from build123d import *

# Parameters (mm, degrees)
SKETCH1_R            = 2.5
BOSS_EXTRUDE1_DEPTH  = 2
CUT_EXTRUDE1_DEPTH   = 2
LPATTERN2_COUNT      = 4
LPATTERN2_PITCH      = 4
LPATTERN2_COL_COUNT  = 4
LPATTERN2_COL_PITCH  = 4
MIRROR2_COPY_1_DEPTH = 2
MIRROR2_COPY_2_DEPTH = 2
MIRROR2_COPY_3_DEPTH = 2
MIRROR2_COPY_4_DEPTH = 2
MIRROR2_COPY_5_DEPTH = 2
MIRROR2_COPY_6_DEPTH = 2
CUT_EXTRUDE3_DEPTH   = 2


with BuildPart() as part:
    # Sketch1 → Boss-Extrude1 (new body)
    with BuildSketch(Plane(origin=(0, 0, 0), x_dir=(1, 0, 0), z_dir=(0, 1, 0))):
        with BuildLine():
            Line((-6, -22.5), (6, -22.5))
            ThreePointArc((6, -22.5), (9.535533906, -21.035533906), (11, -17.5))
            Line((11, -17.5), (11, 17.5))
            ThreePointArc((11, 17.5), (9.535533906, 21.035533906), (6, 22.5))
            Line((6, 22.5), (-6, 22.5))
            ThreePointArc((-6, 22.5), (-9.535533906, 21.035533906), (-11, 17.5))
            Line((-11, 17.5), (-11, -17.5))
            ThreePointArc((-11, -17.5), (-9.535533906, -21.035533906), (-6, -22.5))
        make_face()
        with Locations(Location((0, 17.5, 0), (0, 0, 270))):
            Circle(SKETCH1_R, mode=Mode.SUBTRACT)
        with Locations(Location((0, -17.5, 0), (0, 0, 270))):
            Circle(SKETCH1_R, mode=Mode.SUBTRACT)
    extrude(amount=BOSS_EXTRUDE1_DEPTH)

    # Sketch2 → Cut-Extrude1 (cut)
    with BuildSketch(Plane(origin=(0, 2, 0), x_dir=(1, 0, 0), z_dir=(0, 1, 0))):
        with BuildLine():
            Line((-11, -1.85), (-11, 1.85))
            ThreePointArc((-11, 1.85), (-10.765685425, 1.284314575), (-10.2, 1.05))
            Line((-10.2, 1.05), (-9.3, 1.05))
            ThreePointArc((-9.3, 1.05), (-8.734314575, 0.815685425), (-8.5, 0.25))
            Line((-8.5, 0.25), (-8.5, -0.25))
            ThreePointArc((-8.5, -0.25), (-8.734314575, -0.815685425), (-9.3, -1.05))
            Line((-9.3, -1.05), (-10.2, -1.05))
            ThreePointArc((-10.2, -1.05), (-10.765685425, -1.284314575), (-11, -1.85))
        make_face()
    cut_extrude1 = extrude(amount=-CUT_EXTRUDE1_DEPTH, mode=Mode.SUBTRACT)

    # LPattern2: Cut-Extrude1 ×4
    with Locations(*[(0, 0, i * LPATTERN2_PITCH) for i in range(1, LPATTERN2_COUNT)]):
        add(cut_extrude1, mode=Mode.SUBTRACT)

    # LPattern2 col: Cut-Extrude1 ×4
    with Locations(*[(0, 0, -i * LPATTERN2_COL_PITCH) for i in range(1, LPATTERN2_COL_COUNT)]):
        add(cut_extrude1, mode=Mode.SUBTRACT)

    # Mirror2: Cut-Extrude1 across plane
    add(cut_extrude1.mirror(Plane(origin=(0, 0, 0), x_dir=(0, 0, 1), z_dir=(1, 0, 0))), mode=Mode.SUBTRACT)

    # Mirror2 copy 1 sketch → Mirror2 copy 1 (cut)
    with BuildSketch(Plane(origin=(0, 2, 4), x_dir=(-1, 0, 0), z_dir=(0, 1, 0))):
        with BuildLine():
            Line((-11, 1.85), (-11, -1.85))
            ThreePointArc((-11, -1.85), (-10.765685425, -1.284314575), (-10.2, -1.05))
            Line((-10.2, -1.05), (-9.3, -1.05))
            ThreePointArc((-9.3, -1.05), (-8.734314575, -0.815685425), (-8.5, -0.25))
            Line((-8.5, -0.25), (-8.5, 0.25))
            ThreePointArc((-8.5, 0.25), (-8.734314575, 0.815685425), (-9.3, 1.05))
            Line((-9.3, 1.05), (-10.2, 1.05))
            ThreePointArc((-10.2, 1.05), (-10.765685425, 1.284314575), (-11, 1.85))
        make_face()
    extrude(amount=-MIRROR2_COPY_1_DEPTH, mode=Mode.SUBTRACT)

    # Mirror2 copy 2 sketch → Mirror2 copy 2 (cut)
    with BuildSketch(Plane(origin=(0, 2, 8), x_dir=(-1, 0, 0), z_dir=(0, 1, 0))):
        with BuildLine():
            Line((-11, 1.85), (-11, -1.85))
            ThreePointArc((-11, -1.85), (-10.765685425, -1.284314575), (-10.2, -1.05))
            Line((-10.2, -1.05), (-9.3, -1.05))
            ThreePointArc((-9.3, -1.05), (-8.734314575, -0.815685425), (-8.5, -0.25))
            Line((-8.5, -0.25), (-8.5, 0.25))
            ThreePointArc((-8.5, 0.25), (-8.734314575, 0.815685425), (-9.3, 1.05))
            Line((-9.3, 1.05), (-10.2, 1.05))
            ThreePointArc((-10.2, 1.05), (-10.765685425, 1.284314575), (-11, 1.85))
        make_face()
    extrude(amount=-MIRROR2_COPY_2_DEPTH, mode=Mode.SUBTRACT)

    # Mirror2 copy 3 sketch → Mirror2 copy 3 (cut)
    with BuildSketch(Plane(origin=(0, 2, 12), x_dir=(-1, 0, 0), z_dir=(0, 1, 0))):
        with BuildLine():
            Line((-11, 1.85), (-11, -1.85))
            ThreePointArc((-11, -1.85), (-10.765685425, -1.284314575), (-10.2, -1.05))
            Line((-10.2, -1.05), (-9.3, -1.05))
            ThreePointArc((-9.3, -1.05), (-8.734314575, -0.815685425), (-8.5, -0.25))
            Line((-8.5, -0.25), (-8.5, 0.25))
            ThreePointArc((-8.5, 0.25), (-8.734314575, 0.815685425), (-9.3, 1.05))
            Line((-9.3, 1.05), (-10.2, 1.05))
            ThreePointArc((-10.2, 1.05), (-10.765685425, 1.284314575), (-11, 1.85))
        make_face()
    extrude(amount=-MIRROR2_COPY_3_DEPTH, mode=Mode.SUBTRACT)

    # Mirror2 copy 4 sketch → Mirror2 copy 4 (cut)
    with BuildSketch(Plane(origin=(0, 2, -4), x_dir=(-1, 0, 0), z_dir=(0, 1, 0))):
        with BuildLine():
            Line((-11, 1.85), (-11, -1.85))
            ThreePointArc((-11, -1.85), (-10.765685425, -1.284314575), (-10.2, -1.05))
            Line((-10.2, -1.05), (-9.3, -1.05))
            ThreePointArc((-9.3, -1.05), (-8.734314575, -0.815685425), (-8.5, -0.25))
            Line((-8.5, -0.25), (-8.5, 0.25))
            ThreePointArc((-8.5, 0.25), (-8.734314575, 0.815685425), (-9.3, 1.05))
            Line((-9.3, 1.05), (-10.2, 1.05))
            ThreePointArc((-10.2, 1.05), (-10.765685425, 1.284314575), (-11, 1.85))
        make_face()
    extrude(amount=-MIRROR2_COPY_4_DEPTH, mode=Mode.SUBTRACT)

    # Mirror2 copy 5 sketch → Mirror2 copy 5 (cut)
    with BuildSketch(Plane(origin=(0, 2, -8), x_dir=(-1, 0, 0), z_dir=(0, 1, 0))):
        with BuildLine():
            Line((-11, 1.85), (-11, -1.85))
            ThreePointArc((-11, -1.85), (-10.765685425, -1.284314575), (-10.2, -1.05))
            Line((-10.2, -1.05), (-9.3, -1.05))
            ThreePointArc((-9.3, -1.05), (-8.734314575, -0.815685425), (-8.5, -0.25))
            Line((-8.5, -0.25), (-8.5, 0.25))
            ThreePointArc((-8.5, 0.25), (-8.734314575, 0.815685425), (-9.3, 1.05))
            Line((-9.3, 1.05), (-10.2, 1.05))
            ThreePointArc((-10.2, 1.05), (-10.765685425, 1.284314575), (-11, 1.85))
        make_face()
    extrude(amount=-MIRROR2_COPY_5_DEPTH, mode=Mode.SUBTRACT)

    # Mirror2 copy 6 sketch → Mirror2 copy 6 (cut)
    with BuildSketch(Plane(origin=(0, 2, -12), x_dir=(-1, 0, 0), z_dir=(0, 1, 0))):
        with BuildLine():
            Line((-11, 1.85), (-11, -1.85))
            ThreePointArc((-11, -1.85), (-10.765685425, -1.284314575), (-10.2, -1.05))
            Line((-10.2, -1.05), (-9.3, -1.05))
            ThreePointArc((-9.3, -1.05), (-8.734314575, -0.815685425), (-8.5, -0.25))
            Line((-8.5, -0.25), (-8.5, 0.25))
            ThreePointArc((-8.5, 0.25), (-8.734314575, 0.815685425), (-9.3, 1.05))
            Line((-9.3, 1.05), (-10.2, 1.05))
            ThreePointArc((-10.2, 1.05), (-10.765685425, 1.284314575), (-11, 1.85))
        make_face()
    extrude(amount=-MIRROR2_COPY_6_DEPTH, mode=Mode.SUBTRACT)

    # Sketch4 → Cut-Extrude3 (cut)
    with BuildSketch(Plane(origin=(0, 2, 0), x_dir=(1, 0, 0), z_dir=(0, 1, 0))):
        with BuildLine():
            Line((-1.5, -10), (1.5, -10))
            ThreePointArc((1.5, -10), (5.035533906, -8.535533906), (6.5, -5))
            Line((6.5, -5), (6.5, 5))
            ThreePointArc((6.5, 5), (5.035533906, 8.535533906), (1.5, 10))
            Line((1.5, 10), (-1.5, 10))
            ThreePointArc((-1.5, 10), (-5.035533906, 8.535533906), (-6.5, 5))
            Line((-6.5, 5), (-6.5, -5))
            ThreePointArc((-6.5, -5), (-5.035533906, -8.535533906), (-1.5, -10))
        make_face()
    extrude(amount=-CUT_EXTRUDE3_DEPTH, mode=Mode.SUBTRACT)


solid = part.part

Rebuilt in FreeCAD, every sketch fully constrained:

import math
import FreeCAD as App
import Part
import Sketcher

V = App.Vector

doc = App.newDocument("Part")
body = doc.addObject("PartDesign::Body", "Body")

# Sketch on XZ plane
sketch1 = body.newObject("Sketcher::SketchObject", "Sketch")
sketch1.AttachmentSupport = (doc.getObject("XZ_Plane"), [""])
sketch1.MapMode = "FlatFace"
sketch1.addGeometry([
    Part.LineSegment(V(-6, 22.5, 0), V(6, 22.5, 0)),  # 0
    Part.ArcOfCircle(Part.Circle(V(6, 17.5, 0), V(0, 0, 1), 5), math.radians(0), math.radians(90)),  # 1
    Part.LineSegment(V(11, 17.5, 0), V(11, -17.5, 0)),  # 2
    Part.ArcOfCircle(Part.Circle(V(6, -17.5, 0), V(0, 0, 1), 5), math.radians(-90), math.radians(0)),  # 3
    Part.LineSegment(V(6, -22.5, 0), V(-6, -22.5, 0)),  # 4
    Part.ArcOfCircle(Part.Circle(V(-6, -17.5, 0), V(0, 0, 1), 5), math.radians(180), math.radians(270)),  # 5
    Part.LineSegment(V(-11, -17.5, 0), V(-11, 17.5, 0)),  # 6
    Part.ArcOfCircle(Part.Circle(V(-6, 17.5, 0), V(0, 0, 1), 5), math.radians(90), math.radians(180)),  # 7
    Part.Circle(V(0, 17.5, 0), V(0, 0, 1), 2.5),  # 8
    Part.Circle(V(0, -17.5, 0), V(0, 0, 1), 2.5),  # 9
], False)
sketch1.addConstraint([
    Sketcher.Constraint("Tangent", 0, 2, 1, 2),
    Sketcher.Constraint("Tangent", 1, 1, 2, 1),
    Sketcher.Constraint("Tangent", 2, 2, 3, 2),
    Sketcher.Constraint("Tangent", 3, 1, 4, 1),
    Sketcher.Constraint("Tangent", 4, 2, 5, 2),
    Sketcher.Constraint("Tangent", 5, 1, 6, 1),
    Sketcher.Constraint("Tangent", 6, 2, 7, 2),
    Sketcher.Constraint("Tangent", 7, 1, 0, 1),
    Sketcher.Constraint("Horizontal", 0),
    Sketcher.Constraint("Vertical", 2),
    Sketcher.Constraint("Horizontal", 4),
    Sketcher.Constraint("Vertical", 6),
    Sketcher.Constraint("Equal", 1, 3),
    Sketcher.Constraint("Equal", 3, 5),
    Sketcher.Constraint("Equal", 5, 7),
    Sketcher.Constraint("Equal", 8, 9),
    Sketcher.Constraint("Symmetric", 1, 3, 5, 3, -1, 1),
    Sketcher.Constraint("Symmetric", 8, 3, 9, 3, -1, 1),
    Sketcher.Constraint("PointOnObject", 8, 3, -2),
    Sketcher.Constraint("Horizontal", 7, 3, 8, 3),
    Sketcher.Constraint("Diameter", 8, 5.0),
    Sketcher.Constraint("Radius", 1, 5.0),
    Sketcher.Constraint("DistanceX", 0, 1, 0, 2, 12.0),
    Sketcher.Constraint("DistanceY", 2, 2, 2, 1, 35.0),
])
pad1 = body.newObject("PartDesign::Pad", "Pad")
pad1.Profile = sketch1
pad1.Length = 2
pad1.Reversed = True

# Sketch on XZ plane
sketch2 = body.newObject("Sketcher::SketchObject", "Sketch001")
sketch2.AttachmentSupport = (doc.getObject("XZ_Plane"), [""])
sketch2.MapMode = "FlatFace"
sketch2.AttachmentOffset = App.Placement(V(0, 0, -2), App.Rotation())
sketch2.addGeometry([
    Part.LineSegment(V(-11, -1.9, 0), V(-11, 1.9, 0)),  # 0
    Part.ArcOfCircle(Part.Circle(V(-10.2, 1.9, 0), V(0, 0, 1), 0.8), math.radians(180), math.radians(270)),  # 1
    Part.LineSegment(V(-10.2, 1.1, 0), V(-9.3, 1.1, 0)),  # 2
    Part.ArcOfCircle(Part.Circle(V(-9.3, 0.2, 0), V(0, 0, 1), 0.8), math.radians(0), math.radians(90)),  # 3
    Part.LineSegment(V(-8.5, 0.2, 0), V(-8.5, -0.2, 0)),  # 4
    Part.ArcOfCircle(Part.Circle(V(-9.3, -0.2, 0), V(0, 0, 1), 0.8), math.radians(-90), math.radians(0)),  # 5
    Part.LineSegment(V(-9.3, -1.1, 0), V(-10.2, -1.1, 0)),  # 6
    Part.ArcOfCircle(Part.Circle(V(-10.2, -1.9, 0), V(0, 0, 1), 0.8), math.radians(90), math.radians(180)),  # 7
], False)
sketch2.addConstraint([
    Sketcher.Constraint("Tangent", 0, 2, 1, 1),
    Sketcher.Constraint("Tangent", 1, 2, 2, 1),
    Sketcher.Constraint("Tangent", 2, 2, 3, 2),
    Sketcher.Constraint("Tangent", 3, 1, 4, 1),
    Sketcher.Constraint("Tangent", 4, 2, 5, 2),
    Sketcher.Constraint("Tangent", 5, 1, 6, 1),
    Sketcher.Constraint("Tangent", 6, 2, 7, 1),
    Sketcher.Constraint("Tangent", 7, 2, 0, 1),
    Sketcher.Constraint("Vertical", 0),
    Sketcher.Constraint("Horizontal", 2),
    Sketcher.Constraint("Vertical", 4),
    Sketcher.Constraint("Horizontal", 6),
    Sketcher.Constraint("Equal", 1, 3),
    Sketcher.Constraint("Equal", 3, 5),
    Sketcher.Constraint("Equal", 5, 7),
    Sketcher.Constraint("Radius", 1, 0.8),
    Sketcher.Constraint("DistanceX", 2, 1, 2, 2, 0.9),
    Sketcher.Constraint("DistanceY", 0, 1, 0, 2, 3.7),
    Sketcher.Constraint("DistanceX", 0, 2, -1, 1, 11.0),
    Sketcher.Constraint("DistanceY", -1, 1, 1, 3, 1.85),
])
pocket1 = body.newObject("PartDesign::Pocket", "Pocket")
pocket1.Profile = sketch2
pocket1.Length = 2
pocket1.Reversed = True
doc.recompute()

linearpattern = body.newObject("PartDesign::LinearPattern", "LinearPattern")
linearpattern.Originals = [pocket1]
linearpattern.Direction = (doc.getObject("Z_Axis"), [""])
linearpattern.Mode = "offset"
linearpattern.Offset = 4
linearpattern.Occurrences = 4
body.Tip = linearpattern
doc.recompute()

linearpattern2 = body.newObject("PartDesign::LinearPattern", "LinearPattern001")
linearpattern2.Originals = [pocket1]
linearpattern2.Direction = (doc.getObject("Z_Axis"), [""])
linearpattern2.Mode = "offset"
linearpattern2.Offset = 4
linearpattern2.Occurrences = 4
linearpattern2.Reversed = True
body.Tip = linearpattern2
doc.recompute()

mirrored = body.newObject("PartDesign::Mirrored", "Mirrored")
mirrored.Originals = [pocket1]
mirrored.MirrorPlane = (doc.getObject("YZ_Plane"), [""])
body.Tip = mirrored

# Sketch on XZ plane
sketch3 = body.newObject("Sketcher::SketchObject", "Sketch002")
sketch3.AttachmentSupport = (doc.getObject("XZ_Plane"), [""])
sketch3.MapMode = "FlatFace"
sketch3.AttachmentOffset = App.Placement(V(0, 0, -2), App.Rotation())
sketch3.addGeometry([
    Part.LineSegment(V(11, 5.8, 0), V(11, 2.1, 0)),  # 0
    Part.ArcOfCircle(Part.Circle(V(10.2, 2.1, 0), V(0, 0, 1), 0.8), math.radians(0), math.radians(90)),  # 1
    Part.LineSegment(V(10.2, 3, 0), V(9.3, 3, 0)),  # 2
    Part.ArcOfCircle(Part.Circle(V(9.3, 3.8, 0), V(0, 0, 1), 0.8), math.radians(180), math.radians(270)),  # 3
    Part.LineSegment(V(8.5, 3.8, 0), V(8.5, 4.2, 0)),  # 4
    Part.ArcOfCircle(Part.Circle(V(9.3, 4.2, 0), V(0, 0, 1), 0.8), math.radians(90), math.radians(180)),  # 5
    Part.LineSegment(V(9.3, 5, 0), V(10.2, 5, 0)),  # 6
    Part.ArcOfCircle(Part.Circle(V(10.2, 5.8, 0), V(0, 0, 1), 0.8), math.radians(-90), math.radians(0)),  # 7
], False)
sketch3.addConstraint([
    Sketcher.Constraint("Tangent", 0, 2, 1, 1),
    Sketcher.Constraint("Tangent", 1, 2, 2, 1),
    Sketcher.Constraint("Tangent", 2, 2, 3, 2),
    Sketcher.Constraint("Tangent", 3, 1, 4, 1),
    Sketcher.Constraint("Tangent", 4, 2, 5, 2),
    Sketcher.Constraint("Tangent", 5, 1, 6, 1),
    Sketcher.Constraint("Tangent", 6, 2, 7, 1),
    Sketcher.Constraint("Tangent", 7, 2, 0, 1),
    Sketcher.Constraint("Vertical", 0),
    Sketcher.Constraint("Horizontal", 2),
    Sketcher.Constraint("Vertical", 4),
    Sketcher.Constraint("Horizontal", 6),
    Sketcher.Constraint("Equal", 1, 3),
    Sketcher.Constraint("Equal", 3, 5),
    Sketcher.Constraint("Equal", 5, 7),
    Sketcher.Constraint("Radius", 1, 0.8),
    Sketcher.Constraint("DistanceX", 2, 2, 2, 1, 0.9),
    Sketcher.Constraint("DistanceY", 0, 2, 0, 1, 3.7),
    Sketcher.Constraint("DistanceX", -1, 1, 0, 2, 11.0),
    Sketcher.Constraint("DistanceY", -1, 1, 1, 3, 2.15),
])
pocket2 = body.newObject("PartDesign::Pocket", "Pocket001")
pocket2.Profile = sketch3
pocket2.Length = 2
pocket2.Reversed = True

# Sketch on XZ plane
sketch4 = body.newObject("Sketcher::SketchObject", "Sketch003")
sketch4.AttachmentSupport = (doc.getObject("XZ_Plane"), [""])
sketch4.MapMode = "FlatFace"
sketch4.AttachmentOffset = App.Placement(V(0, 0, -2), App.Rotation())
sketch4.addGeometry([
    Part.LineSegment(V(11, 9.8, 0), V(11, 6.2, 0)),  # 0
    Part.ArcOfCircle(Part.Circle(V(10.2, 6.2, 0), V(0, 0, 1), 0.8), math.radians(0), math.radians(90)),  # 1
    Part.LineSegment(V(10.2, 7, 0), V(9.3, 7, 0)),  # 2
    Part.ArcOfCircle(Part.Circle(V(9.3, 7.8, 0), V(0, 0, 1), 0.8), math.radians(180), math.radians(270)),  # 3
    Part.LineSegment(V(8.5, 7.8, 0), V(8.5, 8.2, 0)),  # 4
    Part.ArcOfCircle(Part.Circle(V(9.3, 8.2, 0), V(0, 0, 1), 0.8), math.radians(90), math.radians(180)),  # 5
    Part.LineSegment(V(9.3, 9.1, 0), V(10.2, 9.1, 0)),  # 6
    Part.ArcOfCircle(Part.Circle(V(10.2, 9.8, 0), V(0, 0, 1), 0.8), math.radians(-90), math.radians(0)),  # 7
], False)
sketch4.addConstraint([
    Sketcher.Constraint("Tangent", 0, 2, 1, 1),
    Sketcher.Constraint("Tangent", 1, 2, 2, 1),
    Sketcher.Constraint("Tangent", 2, 2, 3, 2),
    Sketcher.Constraint("Tangent", 3, 1, 4, 1),
    Sketcher.Constraint("Tangent", 4, 2, 5, 2),
    Sketcher.Constraint("Tangent", 5, 1, 6, 1),
    Sketcher.Constraint("Tangent", 6, 2, 7, 1),
    Sketcher.Constraint("Tangent", 7, 2, 0, 1),
    Sketcher.Constraint("Vertical", 0),
    Sketcher.Constraint("Horizontal", 2),
    Sketcher.Constraint("Vertical", 4),
    Sketcher.Constraint("Horizontal", 6),
    Sketcher.Constraint("Equal", 1, 3),
    Sketcher.Constraint("Equal", 3, 5),
    Sketcher.Constraint("Equal", 5, 7),
    Sketcher.Constraint("Radius", 1, 0.8),
    Sketcher.Constraint("DistanceX", 2, 2, 2, 1, 0.9),
    Sketcher.Constraint("DistanceY", 0, 2, 0, 1, 3.7),
    Sketcher.Constraint("DistanceX", -1, 1, 0, 2, 11.0),
    Sketcher.Constraint("DistanceY", -1, 1, 1, 3, 6.15),
])
pocket3 = body.newObject("PartDesign::Pocket", "Pocket002")
pocket3.Profile = sketch4
pocket3.Length = 2
pocket3.Reversed = True

# Sketch on XZ plane
sketch5 = body.newObject("Sketcher::SketchObject", "Sketch004")
sketch5.AttachmentSupport = (doc.getObject("XZ_Plane"), [""])
sketch5.MapMode = "FlatFace"
sketch5.AttachmentOffset = App.Placement(V(0, 0, -2), App.Rotation())
sketch5.addGeometry([
    Part.LineSegment(V(11, 13.8, 0), V(11, 10.2, 0)),  # 0
    Part.ArcOfCircle(Part.Circle(V(10.2, 10.2, 0), V(0, 0, 1), 0.8), math.radians(0), math.radians(90)),  # 1
    Part.LineSegment(V(10.2, 10.9, 0), V(9.3, 10.9, 0)),  # 2
    Part.ArcOfCircle(Part.Circle(V(9.3, 11.8, 0), V(0, 0, 1), 0.8), math.radians(180), math.radians(270)),  # 3
    Part.LineSegment(V(8.5, 11.8, 0), V(8.5, 12.2, 0)),  # 4
    Part.ArcOfCircle(Part.Circle(V(9.3, 12.2, 0), V(0, 0, 1), 0.8), math.radians(90), math.radians(180)),  # 5
    Part.LineSegment(V(9.3, 13.1, 0), V(10.2, 13.1, 0)),  # 6
    Part.ArcOfCircle(Part.Circle(V(10.2, 13.8, 0), V(0, 0, 1), 0.8), math.radians(-90), math.radians(0)),  # 7
], False)
sketch5.addConstraint([
    Sketcher.Constraint("Tangent", 0, 2, 1, 1),
    Sketcher.Constraint("Tangent", 1, 2, 2, 1),
    Sketcher.Constraint("Tangent", 2, 2, 3, 2),
    Sketcher.Constraint("Tangent", 3, 1, 4, 1),
    Sketcher.Constraint("Tangent", 4, 2, 5, 2),
    Sketcher.Constraint("Tangent", 5, 1, 6, 1),
    Sketcher.Constraint("Tangent", 6, 2, 7, 1),
    Sketcher.Constraint("Tangent", 7, 2, 0, 1),
    Sketcher.Constraint("Vertical", 0),
    Sketcher.Constraint("Horizontal", 2),
    Sketcher.Constraint("Vertical", 4),
    Sketcher.Constraint("Horizontal", 6),
    Sketcher.Constraint("Equal", 1, 3),
    Sketcher.Constraint("Equal", 3, 5),
    Sketcher.Constraint("Equal", 5, 7),
    Sketcher.Constraint("Radius", 1, 0.8),
    Sketcher.Constraint("DistanceX", 2, 2, 2, 1, 0.9),
    Sketcher.Constraint("DistanceY", 0, 2, 0, 1, 3.7),
    Sketcher.Constraint("DistanceX", -1, 1, 0, 2, 11.0),
    Sketcher.Constraint("DistanceY", -1, 1, 1, 3, 10.15),
])
pocket4 = body.newObject("PartDesign::Pocket", "Pocket003")
pocket4.Profile = sketch5
pocket4.Length = 2
pocket4.Reversed = True

# Sketch on XZ plane
sketch6 = body.newObject("Sketcher::SketchObject", "Sketch005")
sketch6.AttachmentSupport = (doc.getObject("XZ_Plane"), [""])
sketch6.MapMode = "FlatFace"
sketch6.AttachmentOffset = App.Placement(V(0, 0, -2), App.Rotation())
sketch6.addGeometry([
    Part.LineSegment(V(11, -2.1, 0), V(11, -5.8, 0)),  # 0
    Part.ArcOfCircle(Part.Circle(V(10.2, -5.8, 0), V(0, 0, 1), 0.8), math.radians(0), math.radians(90)),  # 1
    Part.LineSegment(V(10.2, -5, 0), V(9.3, -5, 0)),  # 2
    Part.ArcOfCircle(Part.Circle(V(9.3, -4.2, 0), V(0, 0, 1), 0.8), math.radians(180), math.radians(270)),  # 3
    Part.LineSegment(V(8.5, -4.2, 0), V(8.5, -3.8, 0)),  # 4
    Part.ArcOfCircle(Part.Circle(V(9.3, -3.8, 0), V(0, 0, 1), 0.8), math.radians(90), math.radians(180)),  # 5
    Part.LineSegment(V(9.3, -3, 0), V(10.2, -3, 0)),  # 6
    Part.ArcOfCircle(Part.Circle(V(10.2, -2.1, 0), V(0, 0, 1), 0.8), math.radians(-90), math.radians(0)),  # 7
], False)
sketch6.addConstraint([
    Sketcher.Constraint("Tangent", 0, 2, 1, 1),
    Sketcher.Constraint("Tangent", 1, 2, 2, 1),
    Sketcher.Constraint("Tangent", 2, 2, 3, 2),
    Sketcher.Constraint("Tangent", 3, 1, 4, 1),
    Sketcher.Constraint("Tangent", 4, 2, 5, 2),
    Sketcher.Constraint("Tangent", 5, 1, 6, 1),
    Sketcher.Constraint("Tangent", 6, 2, 7, 1),
    Sketcher.Constraint("Tangent", 7, 2, 0, 1),
    Sketcher.Constraint("Vertical", 0),
    Sketcher.Constraint("Horizontal", 2),
    Sketcher.Constraint("Vertical", 4),
    Sketcher.Constraint("Horizontal", 6),
    Sketcher.Constraint("Equal", 1, 3),
    Sketcher.Constraint("Equal", 3, 5),
    Sketcher.Constraint("Equal", 5, 7),
    Sketcher.Constraint("Radius", 1, 0.8),
    Sketcher.Constraint("DistanceX", 2, 2, 2, 1, 0.9),
    Sketcher.Constraint("DistanceY", 0, 2, 0, 1, 3.7),
    Sketcher.Constraint("DistanceX", -1, 1, 0, 2, 11.0),
    Sketcher.Constraint("DistanceY", 1, 3, -1, 1, 5.85),
])
pocket5 = body.newObject("PartDesign::Pocket", "Pocket004")
pocket5.Profile = sketch6
pocket5.Length = 2
pocket5.Reversed = True

# Sketch on XZ plane
sketch7 = body.newObject("Sketcher::SketchObject", "Sketch006")
sketch7.AttachmentSupport = (doc.getObject("XZ_Plane"), [""])
sketch7.MapMode = "FlatFace"
sketch7.AttachmentOffset = App.Placement(V(0, 0, -2), App.Rotation())
sketch7.addGeometry([
    Part.LineSegment(V(11, -6.2, 0), V(11, -9.8, 0)),  # 0
    Part.ArcOfCircle(Part.Circle(V(10.2, -9.8, 0), V(0, 0, 1), 0.8), math.radians(0), math.radians(90)),  # 1
    Part.LineSegment(V(10.2, -9.1, 0), V(9.3, -9.1, 0)),  # 2
    Part.ArcOfCircle(Part.Circle(V(9.3, -8.2, 0), V(0, 0, 1), 0.8), math.radians(180), math.radians(270)),  # 3
    Part.LineSegment(V(8.5, -8.2, 0), V(8.5, -7.8, 0)),  # 4
    Part.ArcOfCircle(Part.Circle(V(9.3, -7.8, 0), V(0, 0, 1), 0.8), math.radians(90), math.radians(180)),  # 5
    Part.LineSegment(V(9.3, -7, 0), V(10.2, -7, 0)),  # 6
    Part.ArcOfCircle(Part.Circle(V(10.2, -6.2, 0), V(0, 0, 1), 0.8), math.radians(-90), math.radians(0)),  # 7
], False)
sketch7.addConstraint([
    Sketcher.Constraint("Tangent", 0, 2, 1, 1),
    Sketcher.Constraint("Tangent", 1, 2, 2, 1),
    Sketcher.Constraint("Tangent", 2, 2, 3, 2),
    Sketcher.Constraint("Tangent", 3, 1, 4, 1),
    Sketcher.Constraint("Tangent", 4, 2, 5, 2),
    Sketcher.Constraint("Tangent", 5, 1, 6, 1),
    Sketcher.Constraint("Tangent", 6, 2, 7, 1),
    Sketcher.Constraint("Tangent", 7, 2, 0, 1),
    Sketcher.Constraint("Vertical", 0),
    Sketcher.Constraint("Horizontal", 2),
    Sketcher.Constraint("Vertical", 4),
    Sketcher.Constraint("Horizontal", 6),
    Sketcher.Constraint("Equal", 1, 3),
    Sketcher.Constraint("Equal", 3, 5),
    Sketcher.Constraint("Equal", 5, 7),
    Sketcher.Constraint("Radius", 1, 0.8),
    Sketcher.Constraint("DistanceX", 2, 2, 2, 1, 0.9),
    Sketcher.Constraint("DistanceY", 0, 2, 0, 1, 3.7),
    Sketcher.Constraint("DistanceX", -1, 1, 0, 2, 11.0),
    Sketcher.Constraint("DistanceY", 1, 3, -1, 1, 9.85),
])
pocket6 = body.newObject("PartDesign::Pocket", "Pocket005")
pocket6.Profile = sketch7
pocket6.Length = 2
pocket6.Reversed = True

# Sketch on XZ plane
sketch8 = body.newObject("Sketcher::SketchObject", "Sketch007")
sketch8.AttachmentSupport = (doc.getObject("XZ_Plane"), [""])
sketch8.MapMode = "FlatFace"
sketch8.AttachmentOffset = App.Placement(V(0, 0, -2), App.Rotation())
sketch8.addGeometry([
    Part.LineSegment(V(11, -10.2, 0), V(11, -13.8, 0)),  # 0
    Part.ArcOfCircle(Part.Circle(V(10.2, -13.8, 0), V(0, 0, 1), 0.8), math.radians(0), math.radians(90)),  # 1
    Part.LineSegment(V(10.2, -13.1, 0), V(9.3, -13.1, 0)),  # 2
    Part.ArcOfCircle(Part.Circle(V(9.3, -12.2, 0), V(0, 0, 1), 0.8), math.radians(180), math.radians(270)),  # 3
    Part.LineSegment(V(8.5, -12.2, 0), V(8.5, -11.8, 0)),  # 4
    Part.ArcOfCircle(Part.Circle(V(9.3, -11.8, 0), V(0, 0, 1), 0.8), math.radians(90), math.radians(180)),  # 5
    Part.LineSegment(V(9.3, -10.9, 0), V(10.2, -10.9, 0)),  # 6
    Part.ArcOfCircle(Part.Circle(V(10.2, -10.2, 0), V(0, 0, 1), 0.8), math.radians(-90), math.radians(0)),  # 7
], False)
sketch8.addConstraint([
    Sketcher.Constraint("Tangent", 0, 2, 1, 1),
    Sketcher.Constraint("Tangent", 1, 2, 2, 1),
    Sketcher.Constraint("Tangent", 2, 2, 3, 2),
    Sketcher.Constraint("Tangent", 3, 1, 4, 1),
    Sketcher.Constraint("Tangent", 4, 2, 5, 2),
    Sketcher.Constraint("Tangent", 5, 1, 6, 1),
    Sketcher.Constraint("Tangent", 6, 2, 7, 1),
    Sketcher.Constraint("Tangent", 7, 2, 0, 1),
    Sketcher.Constraint("Vertical", 0),
    Sketcher.Constraint("Horizontal", 2),
    Sketcher.Constraint("Vertical", 4),
    Sketcher.Constraint("Horizontal", 6),
    Sketcher.Constraint("Equal", 1, 3),
    Sketcher.Constraint("Equal", 3, 5),
    Sketcher.Constraint("Equal", 5, 7),
    Sketcher.Constraint("Radius", 1, 0.8),
    Sketcher.Constraint("DistanceX", 2, 2, 2, 1, 0.9),
    Sketcher.Constraint("DistanceY", 0, 2, 0, 1, 3.7),
    Sketcher.Constraint("DistanceX", -1, 1, 0, 2, 11.0),
    Sketcher.Constraint("DistanceY", 1, 3, -1, 1, 13.85),
])
pocket7 = body.newObject("PartDesign::Pocket", "Pocket006")
pocket7.Profile = sketch8
pocket7.Length = 2
pocket7.Reversed = True

# Sketch on XZ plane
sketch9 = body.newObject("Sketcher::SketchObject", "Sketch008")
sketch9.AttachmentSupport = (doc.getObject("XZ_Plane"), [""])
sketch9.MapMode = "FlatFace"
sketch9.AttachmentOffset = App.Placement(V(0, 0, -2), App.Rotation())
sketch9.addGeometry([
    Part.LineSegment(V(-1.5, 10, 0), V(1.5, 10, 0)),  # 0
    Part.ArcOfCircle(Part.Circle(V(1.5, 5, 0), V(0, 0, 1), 5), math.radians(0), math.radians(90)),  # 1
    Part.LineSegment(V(6.5, 5, 0), V(6.5, -5, 0)),  # 2
    Part.ArcOfCircle(Part.Circle(V(1.5, -5, 0), V(0, 0, 1), 5), math.radians(-90), math.radians(0)),  # 3
    Part.LineSegment(V(1.5, -10, 0), V(-1.5, -10, 0)),  # 4
    Part.ArcOfCircle(Part.Circle(V(-1.5, -5, 0), V(0, 0, 1), 5), math.radians(180), math.radians(270)),  # 5
    Part.LineSegment(V(-6.5, -5, 0), V(-6.5, 5, 0)),  # 6
    Part.ArcOfCircle(Part.Circle(V(-1.5, 5, 0), V(0, 0, 1), 5), math.radians(90), math.radians(180)),  # 7
], False)
sketch9.addConstraint([
    Sketcher.Constraint("Tangent", 0, 2, 1, 2),
    Sketcher.Constraint("Tangent", 1, 1, 2, 1),
    Sketcher.Constraint("Tangent", 2, 2, 3, 2),
    Sketcher.Constraint("Tangent", 3, 1, 4, 1),
    Sketcher.Constraint("Tangent", 4, 2, 5, 2),
    Sketcher.Constraint("Tangent", 5, 1, 6, 1),
    Sketcher.Constraint("Tangent", 6, 2, 7, 2),
    Sketcher.Constraint("Tangent", 7, 1, 0, 1),
    Sketcher.Constraint("Horizontal", 0),
    Sketcher.Constraint("Vertical", 2),
    Sketcher.Constraint("Horizontal", 4),
    Sketcher.Constraint("Vertical", 6),
    Sketcher.Constraint("Equal", 1, 3),
    Sketcher.Constraint("Equal", 3, 5),
    Sketcher.Constraint("Equal", 5, 7),
    Sketcher.Constraint("Symmetric", 1, 3, 5, 3, -1, 1),
    Sketcher.Constraint("Radius", 1, 5.0),
    Sketcher.Constraint("DistanceX", 0, 1, 0, 2, 3.0),
    Sketcher.Constraint("DistanceY", 2, 2, 2, 1, 10.0),
])
pocket8 = body.newObject("PartDesign::Pocket", "Pocket007")
pocket8.Profile = sketch9
pocket8.Length = 2
pocket8.Reversed = True

doc.recompute()
